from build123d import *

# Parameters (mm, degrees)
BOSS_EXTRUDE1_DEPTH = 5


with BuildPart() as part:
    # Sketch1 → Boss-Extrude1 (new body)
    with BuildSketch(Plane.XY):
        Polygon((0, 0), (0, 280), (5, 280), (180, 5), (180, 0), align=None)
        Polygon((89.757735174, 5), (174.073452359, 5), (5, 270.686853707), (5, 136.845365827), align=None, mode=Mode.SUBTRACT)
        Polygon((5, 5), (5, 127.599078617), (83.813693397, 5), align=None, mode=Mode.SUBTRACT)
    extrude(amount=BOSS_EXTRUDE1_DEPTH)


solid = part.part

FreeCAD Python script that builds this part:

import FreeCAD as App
import Part
import Sketcher

V = App.Vector
Q = App.Units.Quantity


def add_polygon(sketch, points):
    """Adds a closed chain of lines whose ends are joined by coincident constraints."""
    first, n = sketch.GeometryCount, len(points)
    for a, b in zip(points, points[1:] + points[:1]):
        sketch.addGeometry(Part.LineSegment(App.Vector(*a, 0), App.Vector(*b, 0)), False)
    for i in range(n):
        sketch.addConstraint(Sketcher.Constraint("Coincident", first + i, 2, first + (i + 1) % n, 1))

doc = App.newDocument("Part")
body = doc.addObject("PartDesign::Body", "Body")

# Sketch on XY plane
sketch1 = doc.addObject("Sketcher::SketchObject", "Sketch")
body.addObject(sketch1)
sketch1.AttachmentSupport = (doc.XY_Plane, [""])
sketch1.MapMode = "FlatFace"
add_polygon(sketch1, [(0, 280), (0, 0), (180, 0), (180, 5), (5, 280)])  # lines 0-4
add_polygon(sketch1, [(5, 5), (5, 127.599079), (83.813693, 5)])  # lines 5-7
add_polygon(sketch1, [(89.757735, 5), (5, 136.845366), (5, 270.686854), (174.073452, 5)])  # lines 8-11
sketch1.addConstraint(Sketcher.Constraint("Vertical", 0))
sketch1.addConstraint(Sketcher.Constraint("Horizontal", 1))
sketch1.addConstraint(Sketcher.Constraint("Vertical", 2))
sketch1.addConstraint(Sketcher.Constraint("Horizontal", 4))
sketch1.addConstraint(Sketcher.Constraint("Vertical", 5))
sketch1.addConstraint(Sketcher.Constraint("Horizontal", 7))
sketch1.addConstraint(Sketcher.Constraint("Vertical", 9))
sketch1.addConstraint(Sketcher.Constraint("Horizontal", 11))
sketch1.addConstraint(Sketcher.Constraint("Coincident", 0, 2, -1, 1))
sketch1.addConstraint(Sketcher.Constraint("Parallel", 6, 8))
sketch1.addConstraint(Sketcher.Constraint("Parallel", 3, 10))
sketch1.addConstraint(Sketcher.Constraint("Horizontal", 2, 2, 6, 2))
sketch1.addConstraint(Sketcher.Constraint("Horizontal", 7, 2, 10, 2))
sketch1.addConstraint(Sketcher.Constraint("Vertical", 3, 2, 5, 2))
sketch1.addConstraint(Sketcher.Constraint("Vertical", 7, 2, 8, 2))
sketch1.addConstraint(Sketcher.Constraint("Equal", 4, 2))
sketch1.addConstraint(Sketcher.Constraint("DistanceX", 1, 1, 1, 2, Q("180 mm")))
sketch1.addConstraint(Sketcher.Constraint("DistanceX", 4, 2, 4, 1, Q("5 mm")))
sketch1.addConstraint(Sketcher.Constraint("DistanceY", 0, 2, 0, 1, Q("280 mm")))
sketch1.addConstraint(Sketcher.Constraint("DistanceY", 5, 1, 5, 2, Q("122.599079 mm")))
sketch1.addConstraint(Sketcher.Constraint("Distance", 6, Q("145.746809 mm")))
sketch1.addConstraint(Sketcher.Constraint("Distance", 10, Q("314.921159 mm")))
sketch1.addConstraint(Sketcher.Constraint("DistanceX", 11, 2, 11, 1, Q("84.315717 mm")))
pad1 = doc.addObject("PartDesign::Pad", "Pad")
body.addObject(pad1)
pad1.Profile = sketch1
pad1.Length = 5

doc.recompute()
